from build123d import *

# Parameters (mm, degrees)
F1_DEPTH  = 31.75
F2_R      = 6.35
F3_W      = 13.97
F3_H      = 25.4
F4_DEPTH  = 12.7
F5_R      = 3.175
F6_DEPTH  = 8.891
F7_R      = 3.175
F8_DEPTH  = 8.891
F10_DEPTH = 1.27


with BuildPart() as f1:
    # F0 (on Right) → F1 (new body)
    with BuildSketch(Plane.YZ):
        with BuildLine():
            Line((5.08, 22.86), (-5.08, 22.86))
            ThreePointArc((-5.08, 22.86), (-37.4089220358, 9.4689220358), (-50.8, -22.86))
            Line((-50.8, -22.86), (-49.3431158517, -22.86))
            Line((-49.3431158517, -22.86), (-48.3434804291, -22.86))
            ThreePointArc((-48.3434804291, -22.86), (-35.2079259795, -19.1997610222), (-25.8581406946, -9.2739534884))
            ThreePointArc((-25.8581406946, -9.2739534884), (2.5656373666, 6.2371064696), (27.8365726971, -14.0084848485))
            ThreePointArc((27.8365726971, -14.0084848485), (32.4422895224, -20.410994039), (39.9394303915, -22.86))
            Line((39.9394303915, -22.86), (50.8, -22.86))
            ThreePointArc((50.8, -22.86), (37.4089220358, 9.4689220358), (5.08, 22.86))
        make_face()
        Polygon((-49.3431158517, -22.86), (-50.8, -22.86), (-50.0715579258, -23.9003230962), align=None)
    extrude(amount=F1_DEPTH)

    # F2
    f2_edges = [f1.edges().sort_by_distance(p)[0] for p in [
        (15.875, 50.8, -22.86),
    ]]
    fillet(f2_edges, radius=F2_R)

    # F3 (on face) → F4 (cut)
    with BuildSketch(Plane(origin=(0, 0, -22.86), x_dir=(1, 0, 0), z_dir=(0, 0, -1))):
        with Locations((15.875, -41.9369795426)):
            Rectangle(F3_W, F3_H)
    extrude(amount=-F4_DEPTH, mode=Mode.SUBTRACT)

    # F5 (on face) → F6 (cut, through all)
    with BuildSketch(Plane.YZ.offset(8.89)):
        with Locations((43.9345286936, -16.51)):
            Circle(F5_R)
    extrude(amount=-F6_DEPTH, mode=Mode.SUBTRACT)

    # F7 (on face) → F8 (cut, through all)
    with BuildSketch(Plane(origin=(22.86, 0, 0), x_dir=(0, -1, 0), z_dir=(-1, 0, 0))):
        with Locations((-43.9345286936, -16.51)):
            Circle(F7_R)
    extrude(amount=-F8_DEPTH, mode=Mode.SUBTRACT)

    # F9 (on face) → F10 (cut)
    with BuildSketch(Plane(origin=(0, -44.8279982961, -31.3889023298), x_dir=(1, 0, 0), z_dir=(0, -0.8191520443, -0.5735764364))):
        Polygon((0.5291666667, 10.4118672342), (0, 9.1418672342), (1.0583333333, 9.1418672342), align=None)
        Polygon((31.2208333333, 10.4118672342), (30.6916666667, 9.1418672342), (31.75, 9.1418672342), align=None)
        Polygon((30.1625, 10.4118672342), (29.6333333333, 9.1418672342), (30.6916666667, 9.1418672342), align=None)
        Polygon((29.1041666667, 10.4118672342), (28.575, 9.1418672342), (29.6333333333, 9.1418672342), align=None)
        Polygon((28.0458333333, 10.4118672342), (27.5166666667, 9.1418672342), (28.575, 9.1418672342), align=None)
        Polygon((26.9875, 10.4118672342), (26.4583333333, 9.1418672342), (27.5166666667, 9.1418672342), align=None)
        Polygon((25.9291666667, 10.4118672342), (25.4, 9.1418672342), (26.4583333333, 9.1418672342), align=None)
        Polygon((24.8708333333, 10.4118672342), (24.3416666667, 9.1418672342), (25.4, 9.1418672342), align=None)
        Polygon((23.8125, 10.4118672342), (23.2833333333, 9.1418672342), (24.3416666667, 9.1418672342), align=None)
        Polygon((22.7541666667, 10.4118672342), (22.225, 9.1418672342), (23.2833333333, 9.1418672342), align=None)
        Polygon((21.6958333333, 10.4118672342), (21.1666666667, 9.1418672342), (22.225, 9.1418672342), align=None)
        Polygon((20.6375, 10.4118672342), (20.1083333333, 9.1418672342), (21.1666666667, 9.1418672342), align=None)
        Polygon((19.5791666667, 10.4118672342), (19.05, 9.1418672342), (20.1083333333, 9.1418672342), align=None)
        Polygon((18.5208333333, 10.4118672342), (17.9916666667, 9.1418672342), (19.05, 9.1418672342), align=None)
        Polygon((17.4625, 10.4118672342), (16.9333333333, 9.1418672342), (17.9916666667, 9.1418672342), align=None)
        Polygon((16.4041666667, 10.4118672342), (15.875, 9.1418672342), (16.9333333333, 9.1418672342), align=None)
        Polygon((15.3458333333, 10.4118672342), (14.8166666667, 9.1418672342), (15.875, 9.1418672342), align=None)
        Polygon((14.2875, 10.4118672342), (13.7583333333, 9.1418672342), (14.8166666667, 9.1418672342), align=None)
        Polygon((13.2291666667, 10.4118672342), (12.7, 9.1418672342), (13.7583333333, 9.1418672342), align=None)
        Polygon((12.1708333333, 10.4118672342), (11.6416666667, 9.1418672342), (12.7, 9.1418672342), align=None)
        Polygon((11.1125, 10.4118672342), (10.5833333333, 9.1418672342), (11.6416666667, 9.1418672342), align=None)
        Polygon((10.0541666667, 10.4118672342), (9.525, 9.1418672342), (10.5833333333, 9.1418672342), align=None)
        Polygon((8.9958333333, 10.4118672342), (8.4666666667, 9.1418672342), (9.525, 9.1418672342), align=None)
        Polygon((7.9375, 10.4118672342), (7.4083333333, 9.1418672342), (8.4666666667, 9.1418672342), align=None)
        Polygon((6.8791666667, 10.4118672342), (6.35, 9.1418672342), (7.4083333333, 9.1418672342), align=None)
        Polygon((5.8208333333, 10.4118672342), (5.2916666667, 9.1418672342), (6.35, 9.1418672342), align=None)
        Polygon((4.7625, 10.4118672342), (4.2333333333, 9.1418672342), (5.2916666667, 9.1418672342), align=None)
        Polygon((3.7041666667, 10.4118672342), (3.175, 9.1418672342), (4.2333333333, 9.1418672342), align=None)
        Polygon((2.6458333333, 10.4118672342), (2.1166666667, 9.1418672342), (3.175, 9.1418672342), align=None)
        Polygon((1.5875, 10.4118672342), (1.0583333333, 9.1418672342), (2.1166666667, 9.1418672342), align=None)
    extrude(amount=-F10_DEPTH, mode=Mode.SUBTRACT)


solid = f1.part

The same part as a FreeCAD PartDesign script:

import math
import FreeCAD as App
import Part
import Sketcher

V = App.Vector
Q = App.Units.Quantity


def edges_at(feature, points):
    """Names of the edges that pass closest to the given points."""
    edges = feature.Shape.Edges
    near = lambda p: min(range(len(edges)), key=lambda i: edges[i].distToShape(Part.Vertex(*p))[0])
    return sorted({f"Edge{near(p) + 1}" for p in points})

doc = App.newDocument("Part")
body = doc.addObject("PartDesign::Body", "Body")

sketch1 = body.newObject("Sketcher::SketchObject", "Sketch")
sketch1.AttachmentSupport = (doc.getObject("YZ_Plane"), [""])
sketch1.MapMode = "FlatFace"
sketch1.addGeometry(Part.LineSegment(V(5.08, 22.86, 0), V(-5.08, 22.86, 0)), False)
sketch1.addGeometry(Part.ArcOfCircle(Part.Circle(V(-5.08, -22.86, 0), V(0, 0, 1), 45.72), math.radians(90), math.radians(180)), False)
sketch1.addGeometry(Part.LineSegment(V(-50.8, -22.86, 0), V(-50.071558, -23.900323, 0)), False)
sketch1.addGeometry(Part.LineSegment(V(-50.071558, -23.900323, 0), V(-49.343116, -22.86, 0)), False)
sketch1.addGeometry(Part.LineSegment(V(-49.343116, -22.86, 0), V(-48.34348, -22.86, 0)), False)
sketch1.addGeometry(Part.ArcOfCircle(Part.Circle(V(-48.34348, 2.54, 0), V(0, 0, 1), 25.4), math.radians(-90), math.radians(-27.717748)), False)
sketch1.addGeometry(Part.ArcOfCircle(Part.Circle(V(0, -22.86, 0), V(0, 0, 1), 29.21), math.radians(17.639701), math.radians(152.282252)), False)
sketch1.addGeometry(Part.ArcOfCircle(Part.Circle(V(39.93943, -10.16, 0), V(0, 0, 1), 12.7), math.radians(-162.360299), math.radians(-90)), False)
sketch1.addGeometry(Part.LineSegment(V(39.93943, -22.86, 0), V(50.8, -22.86, 0)), False)
sketch1.addGeometry(Part.ArcOfCircle(Part.Circle(V(5.08, -22.86, 0), V(0, 0, 1), 45.72), math.radians(0), math.radians(90)), False)
sketch1.addConstraint(Sketcher.Constraint("Tangent", 0, 2, 1, 1))
sketch1.addConstraint(Sketcher.Constraint("Coincident", 1, 2, 2, 1))
sketch1.addConstraint(Sketcher.Constraint("Coincident", 2, 2, 3, 1))
sketch1.addConstraint(Sketcher.Constraint("Coincident", 3, 2, 4, 1))
sketch1.addConstraint(Sketcher.Constraint("Tangent", 4, 2, 5, 1))
sketch1.addConstraint(Sketcher.Constraint("Tangent", 5, 2, 6, 2))
sketch1.addConstraint(Sketcher.Constraint("Tangent", 6, 1, 7, 1))
sketch1.addConstraint(Sketcher.Constraint("Tangent", 7, 2, 8, 1))
sketch1.addConstraint(Sketcher.Constraint("Coincident", 8, 2, 9, 1))
sketch1.addConstraint(Sketcher.Constraint("Tangent", 9, 2, 0, 1))
sketch1.addConstraint(Sketcher.Constraint("Horizontal", 0))
sketch1.addConstraint(Sketcher.Constraint("Horizontal", 4))
sketch1.addConstraint(Sketcher.Constraint("Horizontal", 8))
sketch1.addConstraint(Sketcher.Constraint("Equal", 1, 9))
sketch1.addConstraint(Sketcher.Constraint("Symmetric", 1, 2, 8, 2, -2))
sketch1.addConstraint(Sketcher.Constraint("PointOnObject", 6, 3, -2))
sketch1.addConstraint(Sketcher.Constraint("Horizontal", 1, 3, 6, 3))
sketch1.addConstraint(Sketcher.Constraint("Horizontal", 9, 3, 1, 2))
sketch1.addConstraint(Sketcher.Constraint("Horizontal", 1, 2, 3, 2))
sketch1.addConstraint(Sketcher.Constraint("Equal", 2, 3))
sketch1.addConstraint(Sketcher.Constraint("Radius", 5, Q("1 in")))
sketch1.addConstraint(Sketcher.Constraint("Radius", 1, Q("1.8 in")))
sketch1.addConstraint(Sketcher.Constraint("Radius", 7, Q("0.5 in")))
sketch1.addConstraint(Sketcher.Constraint("Radius", 6, Q("1.15 in")))
sketch1.addConstraint(Sketcher.Constraint("DistanceX", 0, 2, 0, 1, Q("0.4 in")))
sketch1.addConstraint(Sketcher.Constraint("Angle", 2, Q("-55 deg")))
sketch1.addConstraint(Sketcher.Constraint("DistanceY", 1, 3, -1, 1, Q("0.9 in")))
sketch1.addConstraint(Sketcher.Constraint("Distance", 2, Q("0.05 in")))
pad1 = body.newObject("PartDesign::Pad", "Pad")
pad1.Profile = sketch1
pad1.Length = Q("1.25 in")
doc.recompute()

fillet = body.newObject("PartDesign::Fillet", "Fillet")
fillet.Base = (pad1, edges_at(pad1, [(15.875, 50.8, -22.86)]))
fillet.Radius = Q("0.25 in")

sketch2 = body.newObject("Sketcher::SketchObject", "Sketch001")
sketch2.AttachmentSupport = (doc.getObject("XY_Plane"), [""])
sketch2.MapMode = "FlatFace"
sketch2.AttachmentOffset = App.Placement(V(0, 0, -0.9 * 25.4), App.Rotation())
sketch2.addGeometry(Part.LineSegment(V(8.89, 29.23698, 0), V(8.89, 54.63698, 0)), False)
sketch2.addGeometry(Part.LineSegment(V(8.89, 54.63698, 0), V(22.86, 54.63698, 0)), False)
sketch2.addGeometry(Part.LineSegment(V(22.86, 54.63698, 0), V(22.86, 29.23698, 0)), False)
sketch2.addGeometry(Part.LineSegment(V(22.86, 29.23698, 0), V(8.89, 29.23698, 0)), False)
sketch2.addConstraint(Sketcher.Constraint("Coincident", 0, 2, 1, 1))
sketch2.addConstraint(Sketcher.Constraint("Coincident", 1, 2, 2, 1))
sketch2.addConstraint(Sketcher.Constraint("Coincident", 2, 2, 3, 1))
sketch2.addConstraint(Sketcher.Constraint("Coincident", 3, 2, 0, 1))
sketch2.addConstraint(Sketcher.Constraint("Vertical", 0))
sketch2.addConstraint(Sketcher.Constraint("Horizontal", 1))
sketch2.addConstraint(Sketcher.Constraint("Vertical", 2))
sketch2.addConstraint(Sketcher.Constraint("Horizontal", 3))
sketch2.addConstraint(Sketcher.Constraint("DistanceY", 0, 1, 0, 2, Q("1 in")))
sketch2.addConstraint(Sketcher.Constraint("DistanceX", 1, 1, 1, 2, Q("0.55 in")))
sketch2.addConstraint(Sketcher.Constraint("DistanceX", -1, 1, 1, 2, Q("0.9 in")))
sketch2.addConstraint(Sketcher.Constraint("DistanceY", -1, 1, 0, 2, 54.63698))
pocket1 = body.newObject("PartDesign::Pocket", "Pocket")
pocket1.Profile = sketch2
pocket1.Length = Q("0.5 in")
pocket1.Reversed = True

sketch3 = body.newObject("Sketcher::SketchObject", "Sketch002")
sketch3.AttachmentSupport = (doc.getObject("YZ_Plane"), [""])
sketch3.MapMode = "FlatFace"
sketch3.AttachmentOffset = App.Placement(V(0, 0, 0.35 * 25.4), App.Rotation())
sketch3.addGeometry(Part.Circle(V(43.934529, -16.51, 0), V(0, 0, 1), 3.175), False)
sketch3.addConstraint(Sketcher.Constraint("Diameter", 0, Q("0.25 in")))
sketch3.addConstraint(Sketcher.Constraint("DistanceY", 0, 3, -1, 1, Q("0.65 in")))
sketch3.addConstraint(Sketcher.Constraint("DistanceX", -1, 1, 0, 3, 43.934529))
pocket2 = body.newObject("PartDesign::Pocket", "Pocket001")
pocket2.Profile = sketch3
pocket2.Type = "ThroughAll"

sketch4 = body.newObject("Sketcher::SketchObject", "Sketch003")
sketch4.AttachmentSupport = (doc.getObject("YZ_Plane"), [""])
sketch4.MapMode = "FlatFace"
sketch4.AttachmentOffset = App.Placement(V(0, 0, 0.9 * 25.4), App.Rotation())
sketch4.addGeometry(Part.Circle(V(43.934529, -16.51, 0), V(0, 0, 1), 3.175), False)
sketch4.addConstraint(Sketcher.Constraint("Diameter", 0, Q("0.25 in")))
sketch4.addConstraint(Sketcher.Constraint("DistanceY", 0, 3, -1, 1, Q("0.65 in")))
sketch4.addConstraint(Sketcher.Constraint("DistanceX", -1, 1, 0, 3, 43.934529))
pocket3 = body.newObject("PartDesign::Pocket", "Pocket002")
pocket3.Profile = sketch4
pocket3.Type = "ThroughAll"
pocket3.Reversed = True

sketch5 = body.newObject("Sketcher::SketchObject", "Sketch004")
sketch5.Placement = App.Placement(V(0, -44.827998, -31.388902), App.Rotation(V(1, 0, 0), V(0, -0.573576436, 0.819152044), V(0, -0.819152044, -0.573576436), "ZXY"))
sketch5.addGeometry(Part.LineSegment(V(0.529167, 10.411867, 0), V(0, 9.141867, 0)), False)
sketch5.addGeometry(Part.LineSegment(V(0, 9.141867, 0), V(1.058333, 9.141867, 0)), False)
sketch5.addGeometry(Part.LineSegment(V(1.058333, 9.141867, 0), V(0.529167, 10.411867, 0)), False)
sketch5.addGeometry(Part.LineSegment(V(31.220833, 10.411867, 0), V(30.691667, 9.141867, 0)), False)
sketch5.addGeometry(Part.LineSegment(V(30.691667, 9.141867, 0), V(31.75, 9.141867, 0)), False)
sketch5.addGeometry(Part.LineSegment(V(31.75, 9.141867, 0), V(31.220833, 10.411867, 0)), False)
sketch5.addGeometry(Part.LineSegment(V(30.1625, 10.411867, 0), V(29.633333, 9.141867, 0)), False)
sketch5.addGeometry(Part.LineSegment(V(29.633333, 9.141867, 0), V(30.691667, 9.141867, 0)), False)
sketch5.addGeometry(Part.LineSegment(V(30.691667, 9.141867, 0), V(30.1625, 10.411867, 0)), False)
sketch5.addGeometry(Part.LineSegment(V(29.104167, 10.411867, 0), V(28.575, 9.141867, 0)), False)
sketch5.addGeometry(Part.LineSegment(V(28.575, 9.141867, 0), V(29.633333, 9.141867, 0)), False)
sketch5.addGeometry(Part.LineSegment(V(29.633333, 9.141867, 0), V(29.104167, 10.411867, 0)), False)
sketch5.addGeometry(Part.LineSegment(V(28.045833, 10.411867, 0), V(27.516667, 9.141867, 0)), False)
sketch5.addGeometry(Part.LineSegment(V(27.516667, 9.141867, 0), V(28.575, 9.141867, 0)), False)
sketch5.addGeometry(Part.LineSegment(V(28.575, 9.141867, 0), V(28.045833, 10.411867, 0)), False)
sketch5.addGeometry(Part.LineSegment(V(26.9875, 10.411867, 0), V(26.458333, 9.141867, 0)), False)
sketch5.addGeometry(Part.LineSegment(V(26.458333, 9.141867, 0), V(27.516667, 9.141867, 0)), False)
sketch5.addGeometry(Part.LineSegment(V(27.516667, 9.141867, 0), V(26.9875, 10.411867, 0)), False)
sketch5.addGeometry(Part.LineSegment(V(25.929167, 10.411867, 0), V(25.4, 9.141867, 0)), False)
sketch5.addGeometry(Part.LineSegment(V(25.4, 9.141867, 0), V(26.458333, 9.141867, 0)), False)
sketch5.addGeometry(Part.LineSegment(V(26.458333, 9.141867, 0), V(25.929167, 10.411867, 0)), False)
sketch5.addGeometry(Part.LineSegment(V(24.870833, 10.411867, 0), V(24.341667, 9.141867, 0)), False)
sketch5.addGeometry(Part.LineSegment(V(24.341667, 9.141867, 0), V(25.4, 9.141867, 0)), False)
sketch5.addGeometry(Part.LineSegment(V(25.4, 9.141867, 0), V(24.870833, 10.411867, 0)), False)
sketch5.addGeometry(Part.LineSegment(V(23.8125, 10.411867, 0), V(23.283333, 9.141867, 0)), False)
sketch5.addGeometry(Part.LineSegment(V(23.283333, 9.141867, 0), V(24.341667, 9.141867, 0)), False)
sketch5.addGeometry(Part.LineSegment(V(24.341667, 9.141867, 0), V(23.8125, 10.411867, 0)), False)
sketch5.addGeometry(Part.LineSegment(V(22.754167, 10.411867, 0), V(22.225, 9.141867, 0)), False)
sketch5.addGeometry(Part.LineSegment(V(22.225, 9.141867, 0), V(23.283333, 9.141867, 0)), False)
sketch5.addGeometry(Part.LineSegment(V(23.283333, 9.141867, 0), V(22.754167, 10.411867, 0)), False)
sketch5.addGeometry(Part.LineSegment(V(21.695833, 10.411867, 0), V(21.166667, 9.141867, 0)), False)
sketch5.addGeometry(Part.LineSegment(V(21.166667, 9.141867, 0), V(22.225, 9.141867, 0)), False)
sketch5.addGeometry(Part.LineSegment(V(22.225, 9.141867, 0), V(21.695833, 10.411867, 0)), False)
sketch5.addGeometry(Part.LineSegment(V(20.6375, 10.411867, 0), V(20.108333, 9.141867, 0)), False)
sketch5.addGeometry(Part.LineSegment(V(20.108333, 9.141867, 0), V(21.166667, 9.141867, 0)), False)
sketch5.addGeometry(Part.LineSegment(V(21.166667, 9.141867, 0), V(20.6375, 10.411867, 0)), False)
sketch5.addGeometry(Part.LineSegment(V(19.579167, 10.411867, 0), V(19.05, 9.141867, 0)), False)
sketch5.addGeometry(Part.LineSegment(V(19.05, 9.141867, 0), V(20.108333, 9.141867, 0)), False)
sketch5.addGeometry(Part.LineSegment(V(20.108333, 9.141867, 0), V(19.579167, 10.411867, 0)), False)
sketch5.addGeometry(Part.LineSegment(V(18.520833, 10.411867, 0), V(17.991667, 9.141867, 0)), False)
sketch5.addGeometry(Part.LineSegment(V(17.991667, 9.141867, 0), V(19.05, 9.141867, 0)), False)
sketch5.addGeometry(Part.LineSegment(V(19.05, 9.141867, 0), V(18.520833, 10.411867, 0)), False)
sketch5.addGeometry(Part.LineSegment(V(17.4625, 10.411867, 0), V(16.933333, 9.141867, 0)), False)
sketch5.addGeometry(Part.LineSegment(V(16.933333, 9.141867, 0), V(17.991667, 9.141867, 0)), False)
sketch5.addGeometry(Part.LineSegment(V(17.991667, 9.141867, 0), V(17.4625, 10.411867, 0)), False)
sketch5.addGeometry(Part.LineSegment(V(16.404167, 10.411867, 0), V(15.875, 9.141867, 0)), False)
sketch5.addGeometry(Part.LineSegment(V(15.875, 9.141867, 0), V(16.933333, 9.141867, 0)), False)
sketch5.addGeometry(Part.LineSegment(V(16.933333, 9.141867, 0), V(16.404167, 10.411867, 0)), False)
sketch5.addGeometry(Part.LineSegment(V(15.345833, 10.411867, 0), V(14.816667, 9.141867, 0)), False)
sketch5.addGeometry(Part.LineSegment(V(14.816667, 9.141867, 0), V(15.875, 9.141867, 0)), False)
sketch5.addGeometry(Part.LineSegment(V(15.875, 9.141867, 0), V(15.345833, 10.411867, 0)), False)
sketch5.addGeometry(Part.LineSegment(V(14.2875, 10.411867, 0), V(13.758333, 9.141867, 0)), False)
sketch5.addGeometry(Part.LineSegment(V(13.758333, 9.141867, 0), V(14.816667, 9.141867, 0)), False)
sketch5.addGeometry(Part.LineSegment(V(14.816667, 9.141867, 0), V(14.2875, 10.411867, 0)), False)
sketch5.addGeometry(Part.LineSegment(V(13.229167, 10.411867, 0), V(12.7, 9.141867, 0)), False)
sketch5.addGeometry(Part.LineSegment(V(12.7, 9.141867, 0), V(13.758333, 9.141867, 0)), False)
sketch5.addGeometry(Part.LineSegment(V(13.758333, 9.141867, 0), V(13.229167, 10.411867, 0)), False)
sketch5.addGeometry(Part.LineSegment(V(12.170833, 10.411867, 0), V(11.641667, 9.141867, 0)), False)
sketch5.addGeometry(Part.LineSegment(V(11.641667, 9.141867, 0), V(12.7, 9.141867, 0)), False)
sketch5.addGeometry(Part.LineSegment(V(12.7, 9.141867, 0), V(12.170833, 10.411867, 0)), False)
sketch5.addGeometry(Part.LineSegment(V(11.1125, 10.411867, 0), V(10.583333, 9.141867, 0)), False)
sketch5.addGeometry(Part.LineSegment(V(10.583333, 9.141867, 0), V(11.641667, 9.141867, 0)), False)
sketch5.addGeometry(Part.LineSegment(V(11.641667, 9.141867, 0), V(11.1125, 10.411867, 0)), False)
sketch5.addGeometry(Part.LineSegment(V(10.054167, 10.411867, 0), V(9.525, 9.141867, 0)), False)
sketch5.addGeometry(Part.LineSegment(V(9.525, 9.141867, 0), V(10.583333, 9.141867, 0)), False)
sketch5.addGeometry(Part.LineSegment(V(10.583333, 9.141867, 0), V(10.054167, 10.411867, 0)), False)
sketch5.addGeometry(Part.LineSegment(V(8.995833, 10.411867, 0), V(8.466667, 9.141867, 0)), False)
sketch5.addGeometry(Part.LineSegment(V(8.466667, 9.141867, 0), V(9.525, 9.141867, 0)), False)
sketch5.addGeometry(Part.LineSegment(V(9.525, 9.141867, 0), V(8.995833, 10.411867, 0)), False)
sketch5.addGeometry(Part.LineSegment(V(7.9375, 10.411867, 0), V(7.408333, 9.141867, 0)), False)
sketch5.addGeometry(Part.LineSegment(V(7.408333, 9.141867, 0), V(8.466667, 9.141867, 0)), False)
sketch5.addGeometry(Part.LineSegment(V(8.466667, 9.141867, 0), V(7.9375, 10.411867, 0)), False)
sketch5.addGeometry(Part.LineSegment(V(6.879167, 10.411867, 0), V(6.35, 9.141867, 0)), False)
sketch5.addGeometry(Part.LineSegment(V(6.35, 9.141867, 0), V(7.408333, 9.141867, 0)), False)
sketch5.addGeometry(Part.LineSegment(V(7.408333, 9.141867, 0), V(6.879167, 10.411867, 0)), False)
sketch5.addGeometry(Part.LineSegment(V(5.820833, 10.411867, 0), V(5.291667, 9.141867, 0)), False)
sketch5.addGeometry(Part.LineSegment(V(5.291667, 9.141867, 0), V(6.35, 9.141867, 0)), False)
sketch5.addGeometry(Part.LineSegment(V(6.35, 9.141867, 0), V(5.820833, 10.411867, 0)), False)
sketch5.addGeometry(Part.LineSegment(V(4.7625, 10.411867, 0), V(4.233333, 9.141867, 0)), False)
sketch5.addGeometry(Part.LineSegment(V(4.233333, 9.141867, 0), V(5.291667, 9.141867, 0)), False)
sketch5.addGeometry(Part.LineSegment(V(5.291667, 9.141867, 0), V(4.7625, 10.411867, 0)), False)
sketch5.addGeometry(Part.LineSegment(V(3.704167, 10.411867, 0), V(3.175, 9.141867, 0)), False)
sketch5.addGeometry(Part.LineSegment(V(3.175, 9.141867, 0), V(4.233333, 9.141867, 0)), False)
sketch5.addGeometry(Part.LineSegment(V(4.233333, 9.141867, 0), V(3.704167, 10.411867, 0)), False)
sketch5.addGeometry(Part.LineSegment(V(2.645833, 10.411867, 0), V(2.116667, 9.141867, 0)), False)
sketch5.addGeometry(Part.LineSegment(V(2.116667, 9.141867, 0), V(3.175, 9.141867, 0)), False)
sketch5.addGeometry(Part.LineSegment(V(3.175, 9.141867, 0), V(2.645833, 10.411867, 0)), False)
sketch5.addGeometry(Part.LineSegment(V(1.5875, 10.411867, 0), V(1.058333, 9.141867, 0)), False)
sketch5.addGeometry(Part.LineSegment(V(1.058333, 9.141867, 0), V(2.116667, 9.141867, 0)), False)
sketch5.addGeometry(Part.LineSegment(V(2.116667, 9.141867, 0), V(1.5875, 10.411867, 0)), False)
sketch5.addConstraint(Sketcher.Constraint("Coincident", 0, 2, 1, 1))
sketch5.addConstraint(Sketcher.Constraint("Coincident", 1, 2, 2, 1))
sketch5.addConstraint(Sketcher.Constraint("Coincident", 2, 2, 0, 1))
sketch5.addConstraint(Sketcher.Constraint("Coincident", 3, 2, 4, 1))
sketch5.addConstraint(Sketcher.Constraint("Coincident", 4, 2, 5, 1))
sketch5.addConstraint(Sketcher.Constraint("Coincident", 5, 2, 3, 1))
sketch5.addConstraint(Sketcher.Constraint("Coincident", 6, 2, 7, 1))
sketch5.addConstraint(Sketcher.Constraint("Coincident", 7, 2, 8, 1))
sketch5.addConstraint(Sketcher.Constraint("Coincident", 8, 2, 6, 1))
sketch5.addConstraint(Sketcher.Constraint("Coincident", 9, 2, 10, 1))
sketch5.addConstraint(Sketcher.Constraint("Coincident", 10, 2, 11, 1))
sketch5.addConstraint(Sketcher.Constraint("Coincident", 11, 2, 9, 1))
sketch5.addConstraint(Sketcher.Constraint("Coincident", 12, 2, 13, 1))
sketch5.addConstraint(Sketcher.Constraint("Coincident", 13, 2, 14, 1))
sketch5.addConstraint(Sketcher.Constraint("Coincident", 14, 2, 12, 1))
sketch5.addConstraint(Sketcher.Constraint("Coincident", 15, 2, 16, 1))
sketch5.addConstraint(Sketcher.Constraint("Coincident", 16, 2, 17, 1))
sketch5.addConstraint(Sketcher.Constraint("Coincident", 17, 2, 15, 1))
sketch5.addConstraint(Sketcher.Constraint("Coincident", 18, 2, 19, 1))
sketch5.addConstraint(Sketcher.Constraint("Coincident", 19, 2, 20, 1))
sketch5.addConstraint(Sketcher.Constraint("Coincident", 20, 2, 18, 1))
sketch5.addConstraint(Sketcher.Constraint("Coincident", 21, 2, 22, 1))
sketch5.addConstraint(Sketcher.Constraint("Coincident", 22, 2, 23, 1))
sketch5.addConstraint(Sketcher.Constraint("Coincident", 23, 2, 21, 1))
sketch5.addConstraint(Sketcher.Constraint("Coincident", 24, 2, 25, 1))
sketch5.addConstraint(Sketcher.Constraint("Coincident", 25, 2, 26, 1))
sketch5.addConstraint(Sketcher.Constraint("Coincident", 26, 2, 24, 1))
sketch5.addConstraint(Sketcher.Constraint("Coincident", 27, 2, 28, 1))
sketch5.addConstraint(Sketcher.Constraint("Coincident", 28, 2, 29, 1))
sketch5.addConstraint(Sketcher.Constraint("Coincident", 29, 2, 27, 1))
sketch5.addConstraint(Sketcher.Constraint("Coincident", 30, 2, 31, 1))
sketch5.addConstraint(Sketcher.Constraint("Coincident", 31, 2, 32, 1))
sketch5.addConstraint(Sketcher.Constraint("Coincident", 32, 2, 30, 1))
sketch5.addConstraint(Sketcher.Constraint("Coincident", 33, 2, 34, 1))
sketch5.addConstraint(Sketcher.Constraint("Coincident", 34, 2, 35, 1))
sketch5.addConstraint(Sketcher.Constraint("Coincident", 35, 2, 33, 1))
sketch5.addConstraint(Sketcher.Constraint("Coincident", 36, 2, 37, 1))
sketch5.addConstraint(Sketcher.Constraint("Coincident", 37, 2, 38, 1))
sketch5.addConstraint(Sketcher.Constraint("Coincident", 38, 2, 36, 1))
sketch5.addConstraint(Sketcher.Constraint("Coincident", 39, 2, 40, 1))
sketch5.addConstraint(Sketcher.Constraint("Coincident", 40, 2, 41, 1))
sketch5.addConstraint(Sketcher.Constraint("Coincident", 41, 2, 39, 1))
sketch5.addConstraint(Sketcher.Constraint("Coincident", 42, 2, 43, 1))
sketch5.addConstraint(Sketcher.Constraint("Coincident", 43, 2, 44, 1))
sketch5.addConstraint(Sketcher.Constraint("Coincident", 44, 2, 42, 1))
sketch5.addConstraint(Sketcher.Constraint("Coincident", 45, 2, 46, 1))
sketch5.addConstraint(Sketcher.Constraint("Coincident", 46, 2, 47, 1))
sketch5.addConstraint(Sketcher.Constraint("Coincident", 47, 2, 45, 1))
sketch5.addConstraint(Sketcher.Constraint("Coincident", 48, 2, 49, 1))
sketch5.addConstraint(Sketcher.Constraint("Coincident", 49, 2, 50, 1))
sketch5.addConstraint(Sketcher.Constraint("Coincident", 50, 2, 48, 1))
sketch5.addConstraint(Sketcher.Constraint("Coincident", 51, 2, 52, 1))
sketch5.addConstraint(Sketcher.Constraint("Coincident", 52, 2, 53, 1))
sketch5.addConstraint(Sketcher.Constraint("Coincident", 53, 2, 51, 1))
sketch5.addConstraint(Sketcher.Constraint("Coincident", 54, 2, 55, 1))
sketch5.addConstraint(Sketcher.Constraint("Coincident", 55, 2, 56, 1))
sketch5.addConstraint(Sketcher.Constraint("Coincident", 56, 2, 54, 1))
sketch5.addConstraint(Sketcher.Constraint("Coincident", 57, 2, 58, 1))
sketch5.addConstraint(Sketcher.Constraint("Coincident", 58, 2, 59, 1))
sketch5.addConstraint(Sketcher.Constraint("Coincident", 59, 2, 57, 1))
sketch5.addConstraint(Sketcher.Constraint("Coincident", 60, 2, 61, 1))
sketch5.addConstraint(Sketcher.Constraint("Coincident", 61, 2, 62, 1))
sketch5.addConstraint(Sketcher.Constraint("Coincident", 62, 2, 60, 1))
sketch5.addConstraint(Sketcher.Constraint("Coincident", 63, 2, 64, 1))
sketch5.addConstraint(Sketcher.Constraint("Coincident", 64, 2, 65, 1))
sketch5.addConstraint(Sketcher.Constraint("Coincident", 65, 2, 63, 1))
sketch5.addConstraint(Sketcher.Constraint("Coincident", 66, 2, 67, 1))
sketch5.addConstraint(Sketcher.Constraint("Coincident", 67, 2, 68, 1))
sketch5.addConstraint(Sketcher.Constraint("Coincident", 68, 2, 66, 1))
sketch5.addConstraint(Sketcher.Constraint("Coincident", 69, 2, 70, 1))
sketch5.addConstraint(Sketcher.Constraint("Coincident", 70, 2, 71, 1))
sketch5.addConstraint(Sketcher.Constraint("Coincident", 71, 2, 69, 1))
sketch5.addConstraint(Sketcher.Constraint("Coincident", 72, 2, 73, 1))
sketch5.addConstraint(Sketcher.Constraint("Coincident", 73, 2, 74, 1))
sketch5.addConstraint(Sketcher.Constraint("Coincident", 74, 2, 72, 1))
sketch5.addConstraint(Sketcher.Constraint("Coincident", 75, 2, 76, 1))
sketch5.addConstraint(Sketcher.Constraint("Coincident", 76, 2, 77, 1))
sketch5.addConstraint(Sketcher.Constraint("Coincident", 77, 2, 75, 1))
sketch5.addConstraint(Sketcher.Constraint("Coincident", 78, 2, 79, 1))
sketch5.addConstraint(Sketcher.Constraint("Coincident", 79, 2, 80, 1))
sketch5.addConstraint(Sketcher.Constraint("Coincident", 80, 2, 78, 1))
sketch5.addConstraint(Sketcher.Constraint("Coincident", 81, 2, 82, 1))
sketch5.addConstraint(Sketcher.Constraint("Coincident", 82, 2, 83, 1))
sketch5.addConstraint(Sketcher.Constraint("Coincident", 83, 2, 81, 1))
sketch5.addConstraint(Sketcher.Constraint("Coincident", 84, 2, 85, 1))
sketch5.addConstraint(Sketcher.Constraint("Coincident", 85, 2, 86, 1))
sketch5.addConstraint(Sketcher.Constraint("Coincident", 86, 2, 84, 1))
sketch5.addConstraint(Sketcher.Constraint("Coincident", 87, 2, 88, 1))
sketch5.addConstraint(Sketcher.Constraint("Coincident", 88, 2, 89, 1))
sketch5.addConstraint(Sketcher.Constraint("Coincident", 89, 2, 87, 1))
sketch5.addConstraint(Sketcher.Constraint("Horizontal", 1))
sketch5.addConstraint(Sketcher.Constraint("Horizontal", 4))
sketch5.addConstraint(Sketcher.Constraint("Horizontal", 7))
sketch5.addConstraint(Sketcher.Constraint("Horizontal", 10))
sketch5.addConstraint(Sketcher.Constraint("Horizontal", 13))
sketch5.addConstraint(Sketcher.Constraint("Horizontal", 16))
sketch5.addConstraint(Sketcher.Constraint("Horizontal", 19))
sketch5.addConstraint(Sketcher.Constraint("Horizontal", 22))
sketch5.addConstraint(Sketcher.Constraint("Horizontal", 25))
sketch5.addConstraint(Sketcher.Constraint("Horizontal", 28))
sketch5.addConstraint(Sketcher.Constraint("Horizontal", 31))
sketch5.addConstraint(Sketcher.Constraint("Horizontal", 34))
sketch5.addConstraint(Sketcher.Constraint("Horizontal", 37))
sketch5.addConstraint(Sketcher.Constraint("Horizontal", 40))
sketch5.addConstraint(Sketcher.Constraint("Horizontal", 43))
sketch5.addConstraint(Sketcher.Constraint("Horizontal", 46))
sketch5.addConstraint(Sketcher.Constraint("Horizontal", 49))
sketch5.addConstraint(Sketcher.Constraint("Horizontal", 52))
sketch5.addConstraint(Sketcher.Constraint("Horizontal", 55))
sketch5.addConstraint(Sketcher.Constraint("Horizontal", 58))
sketch5.addConstraint(Sketcher.Constraint("Horizontal", 61))
sketch5.addConstraint(Sketcher.Constraint("Horizontal", 64))
sketch5.addConstraint(Sketcher.Constraint("Horizontal", 67))
sketch5.addConstraint(Sketcher.Constraint("Horizontal", 70))
sketch5.addConstraint(Sketcher.Constraint("Horizontal", 73))
sketch5.addConstraint(Sketcher.Constraint("Horizontal", 76))
sketch5.addConstraint(Sketcher.Constraint("Horizontal", 79))
sketch5.addConstraint(Sketcher.Constraint("Horizontal", 82))
sketch5.addConstraint(Sketcher.Constraint("Horizontal", 85))
sketch5.addConstraint(Sketcher.Constraint("Horizontal", 88))
sketch5.addConstraint(Sketcher.Constraint("Coincident", 7, 2, 3, 2))
sketch5.addConstraint(Sketcher.Constraint("Coincident", 10, 2, 6, 2))
sketch5.addConstraint(Sketcher.Constraint("Coincident", 13, 2, 9, 2))
sketch5.addConstraint(Sketcher.Constraint("Coincident", 16, 2, 12, 2))
sketch5.addConstraint(Sketcher.Constraint("Coincident", 19, 2, 15, 2))
sketch5.addConstraint(Sketcher.Constraint("Coincident", 22, 2, 18, 2))
sketch5.addConstraint(Sketcher.Constraint("Coincident", 25, 2, 21, 2))
sketch5.addConstraint(Sketcher.Constraint("Coincident", 28, 2, 24, 2))
sketch5.addConstraint(Sketcher.Constraint("Coincident", 31, 2, 27, 2))
sketch5.addConstraint(Sketcher.Constraint("Coincident", 34, 2, 30, 2))
sketch5.addConstraint(Sketcher.Constraint("Coincident", 37, 2, 33, 2))
sketch5.addConstraint(Sketcher.Constraint("Coincident", 40, 2, 36, 2))
sketch5.addConstraint(Sketcher.Constraint("Coincident", 43, 2, 39, 2))
sketch5.addConstraint(Sketcher.Constraint("Coincident", 46, 2, 42, 2))
sketch5.addConstraint(Sketcher.Constraint("Coincident", 49, 2, 45, 2))
sketch5.addConstraint(Sketcher.Constraint("Coincident", 52, 2, 48, 2))
sketch5.addConstraint(Sketcher.Constraint("Coincident", 55, 2, 51, 2))
sketch5.addConstraint(Sketcher.Constraint("Coincident", 58, 2, 54, 2))
sketch5.addConstraint(Sketcher.Constraint("Coincident", 61, 2, 57, 2))
sketch5.addConstraint(Sketcher.Constraint("Coincident", 64, 2, 60, 2))
sketch5.addConstraint(Sketcher.Constraint("Coincident", 67, 2, 63, 2))
sketch5.addConstraint(Sketcher.Constraint("Coincident", 70, 2, 66, 2))
sketch5.addConstraint(Sketcher.Constraint("Coincident", 73, 2, 69, 2))
sketch5.addConstraint(Sketcher.Constraint("Coincident", 76, 2, 72, 2))
sketch5.addConstraint(Sketcher.Constraint("Coincident", 79, 2, 75, 2))
sketch5.addConstraint(Sketcher.Constraint("Coincident", 82, 2, 78, 2))
sketch5.addConstraint(Sketcher.Constraint("Coincident", 85, 2, 81, 2))
sketch5.addConstraint(Sketcher.Constraint("Coincident", 87, 2, 1, 2))
sketch5.addConstraint(Sketcher.Constraint("Coincident", 88, 2, 84, 2))
sketch5.addConstraint(Sketcher.Constraint("PointOnObject", 0, 2, -2))
sketch5.addConstraint(Sketcher.Constraint("Parallel", 0, 3))
sketch5.addConstraint(Sketcher.Constraint("Parallel", 2, 5))
sketch5.addConstraint(Sketcher.Constraint("Parallel", 3, 6))
sketch5.addConstraint(Sketcher.Constraint("Parallel", 5, 8))
sketch5.addConstraint(Sketcher.Constraint("Parallel", 6, 9))
sketch5.addConstraint(Sketcher.Constraint("Parallel", 8, 11))
sketch5.addConstraint(Sketcher.Constraint("Parallel", 9, 12))
sketch5.addConstraint(Sketcher.Constraint("Parallel", 11, 14))
sketch5.addConstraint(Sketcher.Constraint("Parallel", 12, 15))
sketch5.addConstraint(Sketcher.Constraint("Parallel", 14, 17))
sketch5.addConstraint(Sketcher.Constraint("Parallel", 15, 18))
sketch5.addConstraint(Sketcher.Constraint("Parallel", 17, 20))
sketch5.addConstraint(Sketcher.Constraint("Parallel", 18, 21))
sketch5.addConstraint(Sketcher.Constraint("Parallel", 20, 23))
sketch5.addConstraint(Sketcher.Constraint("Parallel", 21, 24))
sketch5.addConstraint(Sketcher.Constraint("Parallel", 23, 26))
sketch5.addConstraint(Sketcher.Constraint("Parallel", 24, 27))
sketch5.addConstraint(Sketcher.Constraint("Parallel", 26, 29))
sketch5.addConstraint(Sketcher.Constraint("Parallel", 27, 30))
sketch5.addConstraint(Sketcher.Constraint("Parallel", 29, 32))
sketch5.addConstraint(Sketcher.Constraint("Parallel", 30, 33))
sketch5.addConstraint(Sketcher.Constraint("Parallel", 32, 35))
sketch5.addConstraint(Sketcher.Constraint("Parallel", 33, 36))
sketch5.addConstraint(Sketcher.Constraint("Parallel", 35, 38))
sketch5.addConstraint(Sketcher.Constraint("Parallel", 36, 39))
sketch5.addConstraint(Sketcher.Constraint("Parallel", 38, 41))
sketch5.addConstraint(Sketcher.Constraint("Parallel", 39, 42))
sketch5.addConstraint(Sketcher.Constraint("Parallel", 41, 44))
sketch5.addConstraint(Sketcher.Constraint("Parallel", 42, 45))
sketch5.addConstraint(Sketcher.Constraint("Parallel", 44, 47))
sketch5.addConstraint(Sketcher.Constraint("Parallel", 45, 48))
sketch5.addConstraint(Sketcher.Constraint("Parallel", 47, 50))
sketch5.addConstraint(Sketcher.Constraint("Parallel", 48, 51))
sketch5.addConstraint(Sketcher.Constraint("Parallel", 50, 53))
sketch5.addConstraint(Sketcher.Constraint("Parallel", 51, 54))
sketch5.addConstraint(Sketcher.Constraint("Parallel", 53, 56))
sketch5.addConstraint(Sketcher.Constraint("Parallel", 54, 57))
sketch5.addConstraint(Sketcher.Constraint("Parallel", 56, 59))
sketch5.addConstraint(Sketcher.Constraint("Parallel", 57, 60))
sketch5.addConstraint(Sketcher.Constraint("Parallel", 59, 62))
sketch5.addConstraint(Sketcher.Constraint("Parallel", 60, 63))
sketch5.addConstraint(Sketcher.Constraint("Parallel", 62, 65))
sketch5.addConstraint(Sketcher.Constraint("Parallel", 63, 66))
sketch5.addConstraint(Sketcher.Constraint("Parallel", 65, 68))
sketch5.addConstraint(Sketcher.Constraint("Parallel", 66, 69))
sketch5.addConstraint(Sketcher.Constraint("Parallel", 68, 71))
sketch5.addConstraint(Sketcher.Constraint("Parallel", 69, 72))
sketch5.addConstraint(Sketcher.Constraint("Parallel", 71, 74))
sketch5.addConstraint(Sketcher.Constraint("Parallel", 72, 75))
sketch5.addConstraint(Sketcher.Constraint("Parallel", 74, 77))
sketch5.addConstraint(Sketcher.Constraint("Parallel", 75, 78))
sketch5.addConstraint(Sketcher.Constraint("Parallel", 77, 80))
sketch5.addConstraint(Sketcher.Constraint("Parallel", 78, 81))
sketch5.addConstraint(Sketcher.Constraint("Parallel", 80, 83))
sketch5.addConstraint(Sketcher.Constraint("Parallel", 81, 84))
sketch5.addConstraint(Sketcher.Constraint("Parallel", 83, 86))
sketch5.addConstraint(Sketcher.Constraint("Parallel", 84, 87))
sketch5.addConstraint(Sketcher.Constraint("Parallel", 86, 89))
sketch5.addConstraint(Sketcher.Constraint("Horizontal", 2, 2, 5, 2))
sketch5.addConstraint(Sketcher.Constraint("Horizontal", 5, 2, 8, 2))
sketch5.addConstraint(Sketcher.Constraint("Horizontal", 8, 2, 11, 2))
sketch5.addConstraint(Sketcher.Constraint("Horizontal", 11, 2, 14, 2))
sketch5.addConstraint(Sketcher.Constraint("Horizontal", 14, 2, 17, 2))
sketch5.addConstraint(Sketcher.Constraint("Horizontal", 17, 2, 20, 2))
sketch5.addConstraint(Sketcher.Constraint("Horizontal", 20, 2, 23, 2))
sketch5.addConstraint(Sketcher.Constraint("Horizontal", 23, 2, 26, 2))
sketch5.addConstraint(Sketcher.Constraint("Horizontal", 26, 2, 29, 2))
sketch5.addConstraint(Sketcher.Constraint("Horizontal", 29, 2, 32, 2))
sketch5.addConstraint(Sketcher.Constraint("Horizontal", 32, 2, 35, 2))
sketch5.addConstraint(Sketcher.Constraint("Horizontal", 35, 2, 38, 2))
sketch5.addConstraint(Sketcher.Constraint("Horizontal", 38, 2, 41, 2))
sketch5.addConstraint(Sketcher.Constraint("Horizontal", 41, 2, 44, 2))
sketch5.addConstraint(Sketcher.Constraint("Horizontal", 44, 2, 47, 2))
sketch5.addConstraint(Sketcher.Constraint("Horizontal", 47, 2, 50, 2))
sketch5.addConstraint(Sketcher.Constraint("Horizontal", 50, 2, 53, 2))
sketch5.addConstraint(Sketcher.Constraint("Horizontal", 53, 2, 56, 2))
sketch5.addConstraint(Sketcher.Constraint("Horizontal", 56, 2, 59, 2))
sketch5.addConstraint(Sketcher.Constraint("Horizontal", 59, 2, 62, 2))
sketch5.addConstraint(Sketcher.Constraint("Horizontal", 62, 2, 65, 2))
sketch5.addConstraint(Sketcher.Constraint("Horizontal", 65, 2, 68, 2))
sketch5.addConstraint(Sketcher.Constraint("Horizontal", 68, 2, 71, 2))
sketch5.addConstraint(Sketcher.Constraint("Horizontal", 71, 2, 74, 2))
sketch5.addConstraint(Sketcher.Constraint("Horizontal", 74, 2, 77, 2))
sketch5.addConstraint(Sketcher.Constraint("Horizontal", 77, 2, 80, 2))
sketch5.addConstraint(Sketcher.Constraint("Horizontal", 80, 2, 83, 2))
sketch5.addConstraint(Sketcher.Constraint("Horizontal", 83, 2, 86, 2))
sketch5.addConstraint(Sketcher.Constraint("Horizontal", 86, 2, 89, 2))
sketch5.addConstraint(Sketcher.Constraint("Equal", 0, 2))
sketch5.addConstraint(Sketcher.Constraint("DistanceX", -1, 1, 18, 2, Q("1 in")))
sketch5.addConstraint(Sketcher.Constraint("Distance", 0, 1.375833))
sketch5.addConstraint(Sketcher.Constraint("DistanceY", -1, 1, 0, 2, 9.141867))
pocket4 = body.newObject("PartDesign::Pocket", "Pocket003")
pocket4.Profile = sketch5
pocket4.Length = Q("0.05 in")

doc.recompute()
